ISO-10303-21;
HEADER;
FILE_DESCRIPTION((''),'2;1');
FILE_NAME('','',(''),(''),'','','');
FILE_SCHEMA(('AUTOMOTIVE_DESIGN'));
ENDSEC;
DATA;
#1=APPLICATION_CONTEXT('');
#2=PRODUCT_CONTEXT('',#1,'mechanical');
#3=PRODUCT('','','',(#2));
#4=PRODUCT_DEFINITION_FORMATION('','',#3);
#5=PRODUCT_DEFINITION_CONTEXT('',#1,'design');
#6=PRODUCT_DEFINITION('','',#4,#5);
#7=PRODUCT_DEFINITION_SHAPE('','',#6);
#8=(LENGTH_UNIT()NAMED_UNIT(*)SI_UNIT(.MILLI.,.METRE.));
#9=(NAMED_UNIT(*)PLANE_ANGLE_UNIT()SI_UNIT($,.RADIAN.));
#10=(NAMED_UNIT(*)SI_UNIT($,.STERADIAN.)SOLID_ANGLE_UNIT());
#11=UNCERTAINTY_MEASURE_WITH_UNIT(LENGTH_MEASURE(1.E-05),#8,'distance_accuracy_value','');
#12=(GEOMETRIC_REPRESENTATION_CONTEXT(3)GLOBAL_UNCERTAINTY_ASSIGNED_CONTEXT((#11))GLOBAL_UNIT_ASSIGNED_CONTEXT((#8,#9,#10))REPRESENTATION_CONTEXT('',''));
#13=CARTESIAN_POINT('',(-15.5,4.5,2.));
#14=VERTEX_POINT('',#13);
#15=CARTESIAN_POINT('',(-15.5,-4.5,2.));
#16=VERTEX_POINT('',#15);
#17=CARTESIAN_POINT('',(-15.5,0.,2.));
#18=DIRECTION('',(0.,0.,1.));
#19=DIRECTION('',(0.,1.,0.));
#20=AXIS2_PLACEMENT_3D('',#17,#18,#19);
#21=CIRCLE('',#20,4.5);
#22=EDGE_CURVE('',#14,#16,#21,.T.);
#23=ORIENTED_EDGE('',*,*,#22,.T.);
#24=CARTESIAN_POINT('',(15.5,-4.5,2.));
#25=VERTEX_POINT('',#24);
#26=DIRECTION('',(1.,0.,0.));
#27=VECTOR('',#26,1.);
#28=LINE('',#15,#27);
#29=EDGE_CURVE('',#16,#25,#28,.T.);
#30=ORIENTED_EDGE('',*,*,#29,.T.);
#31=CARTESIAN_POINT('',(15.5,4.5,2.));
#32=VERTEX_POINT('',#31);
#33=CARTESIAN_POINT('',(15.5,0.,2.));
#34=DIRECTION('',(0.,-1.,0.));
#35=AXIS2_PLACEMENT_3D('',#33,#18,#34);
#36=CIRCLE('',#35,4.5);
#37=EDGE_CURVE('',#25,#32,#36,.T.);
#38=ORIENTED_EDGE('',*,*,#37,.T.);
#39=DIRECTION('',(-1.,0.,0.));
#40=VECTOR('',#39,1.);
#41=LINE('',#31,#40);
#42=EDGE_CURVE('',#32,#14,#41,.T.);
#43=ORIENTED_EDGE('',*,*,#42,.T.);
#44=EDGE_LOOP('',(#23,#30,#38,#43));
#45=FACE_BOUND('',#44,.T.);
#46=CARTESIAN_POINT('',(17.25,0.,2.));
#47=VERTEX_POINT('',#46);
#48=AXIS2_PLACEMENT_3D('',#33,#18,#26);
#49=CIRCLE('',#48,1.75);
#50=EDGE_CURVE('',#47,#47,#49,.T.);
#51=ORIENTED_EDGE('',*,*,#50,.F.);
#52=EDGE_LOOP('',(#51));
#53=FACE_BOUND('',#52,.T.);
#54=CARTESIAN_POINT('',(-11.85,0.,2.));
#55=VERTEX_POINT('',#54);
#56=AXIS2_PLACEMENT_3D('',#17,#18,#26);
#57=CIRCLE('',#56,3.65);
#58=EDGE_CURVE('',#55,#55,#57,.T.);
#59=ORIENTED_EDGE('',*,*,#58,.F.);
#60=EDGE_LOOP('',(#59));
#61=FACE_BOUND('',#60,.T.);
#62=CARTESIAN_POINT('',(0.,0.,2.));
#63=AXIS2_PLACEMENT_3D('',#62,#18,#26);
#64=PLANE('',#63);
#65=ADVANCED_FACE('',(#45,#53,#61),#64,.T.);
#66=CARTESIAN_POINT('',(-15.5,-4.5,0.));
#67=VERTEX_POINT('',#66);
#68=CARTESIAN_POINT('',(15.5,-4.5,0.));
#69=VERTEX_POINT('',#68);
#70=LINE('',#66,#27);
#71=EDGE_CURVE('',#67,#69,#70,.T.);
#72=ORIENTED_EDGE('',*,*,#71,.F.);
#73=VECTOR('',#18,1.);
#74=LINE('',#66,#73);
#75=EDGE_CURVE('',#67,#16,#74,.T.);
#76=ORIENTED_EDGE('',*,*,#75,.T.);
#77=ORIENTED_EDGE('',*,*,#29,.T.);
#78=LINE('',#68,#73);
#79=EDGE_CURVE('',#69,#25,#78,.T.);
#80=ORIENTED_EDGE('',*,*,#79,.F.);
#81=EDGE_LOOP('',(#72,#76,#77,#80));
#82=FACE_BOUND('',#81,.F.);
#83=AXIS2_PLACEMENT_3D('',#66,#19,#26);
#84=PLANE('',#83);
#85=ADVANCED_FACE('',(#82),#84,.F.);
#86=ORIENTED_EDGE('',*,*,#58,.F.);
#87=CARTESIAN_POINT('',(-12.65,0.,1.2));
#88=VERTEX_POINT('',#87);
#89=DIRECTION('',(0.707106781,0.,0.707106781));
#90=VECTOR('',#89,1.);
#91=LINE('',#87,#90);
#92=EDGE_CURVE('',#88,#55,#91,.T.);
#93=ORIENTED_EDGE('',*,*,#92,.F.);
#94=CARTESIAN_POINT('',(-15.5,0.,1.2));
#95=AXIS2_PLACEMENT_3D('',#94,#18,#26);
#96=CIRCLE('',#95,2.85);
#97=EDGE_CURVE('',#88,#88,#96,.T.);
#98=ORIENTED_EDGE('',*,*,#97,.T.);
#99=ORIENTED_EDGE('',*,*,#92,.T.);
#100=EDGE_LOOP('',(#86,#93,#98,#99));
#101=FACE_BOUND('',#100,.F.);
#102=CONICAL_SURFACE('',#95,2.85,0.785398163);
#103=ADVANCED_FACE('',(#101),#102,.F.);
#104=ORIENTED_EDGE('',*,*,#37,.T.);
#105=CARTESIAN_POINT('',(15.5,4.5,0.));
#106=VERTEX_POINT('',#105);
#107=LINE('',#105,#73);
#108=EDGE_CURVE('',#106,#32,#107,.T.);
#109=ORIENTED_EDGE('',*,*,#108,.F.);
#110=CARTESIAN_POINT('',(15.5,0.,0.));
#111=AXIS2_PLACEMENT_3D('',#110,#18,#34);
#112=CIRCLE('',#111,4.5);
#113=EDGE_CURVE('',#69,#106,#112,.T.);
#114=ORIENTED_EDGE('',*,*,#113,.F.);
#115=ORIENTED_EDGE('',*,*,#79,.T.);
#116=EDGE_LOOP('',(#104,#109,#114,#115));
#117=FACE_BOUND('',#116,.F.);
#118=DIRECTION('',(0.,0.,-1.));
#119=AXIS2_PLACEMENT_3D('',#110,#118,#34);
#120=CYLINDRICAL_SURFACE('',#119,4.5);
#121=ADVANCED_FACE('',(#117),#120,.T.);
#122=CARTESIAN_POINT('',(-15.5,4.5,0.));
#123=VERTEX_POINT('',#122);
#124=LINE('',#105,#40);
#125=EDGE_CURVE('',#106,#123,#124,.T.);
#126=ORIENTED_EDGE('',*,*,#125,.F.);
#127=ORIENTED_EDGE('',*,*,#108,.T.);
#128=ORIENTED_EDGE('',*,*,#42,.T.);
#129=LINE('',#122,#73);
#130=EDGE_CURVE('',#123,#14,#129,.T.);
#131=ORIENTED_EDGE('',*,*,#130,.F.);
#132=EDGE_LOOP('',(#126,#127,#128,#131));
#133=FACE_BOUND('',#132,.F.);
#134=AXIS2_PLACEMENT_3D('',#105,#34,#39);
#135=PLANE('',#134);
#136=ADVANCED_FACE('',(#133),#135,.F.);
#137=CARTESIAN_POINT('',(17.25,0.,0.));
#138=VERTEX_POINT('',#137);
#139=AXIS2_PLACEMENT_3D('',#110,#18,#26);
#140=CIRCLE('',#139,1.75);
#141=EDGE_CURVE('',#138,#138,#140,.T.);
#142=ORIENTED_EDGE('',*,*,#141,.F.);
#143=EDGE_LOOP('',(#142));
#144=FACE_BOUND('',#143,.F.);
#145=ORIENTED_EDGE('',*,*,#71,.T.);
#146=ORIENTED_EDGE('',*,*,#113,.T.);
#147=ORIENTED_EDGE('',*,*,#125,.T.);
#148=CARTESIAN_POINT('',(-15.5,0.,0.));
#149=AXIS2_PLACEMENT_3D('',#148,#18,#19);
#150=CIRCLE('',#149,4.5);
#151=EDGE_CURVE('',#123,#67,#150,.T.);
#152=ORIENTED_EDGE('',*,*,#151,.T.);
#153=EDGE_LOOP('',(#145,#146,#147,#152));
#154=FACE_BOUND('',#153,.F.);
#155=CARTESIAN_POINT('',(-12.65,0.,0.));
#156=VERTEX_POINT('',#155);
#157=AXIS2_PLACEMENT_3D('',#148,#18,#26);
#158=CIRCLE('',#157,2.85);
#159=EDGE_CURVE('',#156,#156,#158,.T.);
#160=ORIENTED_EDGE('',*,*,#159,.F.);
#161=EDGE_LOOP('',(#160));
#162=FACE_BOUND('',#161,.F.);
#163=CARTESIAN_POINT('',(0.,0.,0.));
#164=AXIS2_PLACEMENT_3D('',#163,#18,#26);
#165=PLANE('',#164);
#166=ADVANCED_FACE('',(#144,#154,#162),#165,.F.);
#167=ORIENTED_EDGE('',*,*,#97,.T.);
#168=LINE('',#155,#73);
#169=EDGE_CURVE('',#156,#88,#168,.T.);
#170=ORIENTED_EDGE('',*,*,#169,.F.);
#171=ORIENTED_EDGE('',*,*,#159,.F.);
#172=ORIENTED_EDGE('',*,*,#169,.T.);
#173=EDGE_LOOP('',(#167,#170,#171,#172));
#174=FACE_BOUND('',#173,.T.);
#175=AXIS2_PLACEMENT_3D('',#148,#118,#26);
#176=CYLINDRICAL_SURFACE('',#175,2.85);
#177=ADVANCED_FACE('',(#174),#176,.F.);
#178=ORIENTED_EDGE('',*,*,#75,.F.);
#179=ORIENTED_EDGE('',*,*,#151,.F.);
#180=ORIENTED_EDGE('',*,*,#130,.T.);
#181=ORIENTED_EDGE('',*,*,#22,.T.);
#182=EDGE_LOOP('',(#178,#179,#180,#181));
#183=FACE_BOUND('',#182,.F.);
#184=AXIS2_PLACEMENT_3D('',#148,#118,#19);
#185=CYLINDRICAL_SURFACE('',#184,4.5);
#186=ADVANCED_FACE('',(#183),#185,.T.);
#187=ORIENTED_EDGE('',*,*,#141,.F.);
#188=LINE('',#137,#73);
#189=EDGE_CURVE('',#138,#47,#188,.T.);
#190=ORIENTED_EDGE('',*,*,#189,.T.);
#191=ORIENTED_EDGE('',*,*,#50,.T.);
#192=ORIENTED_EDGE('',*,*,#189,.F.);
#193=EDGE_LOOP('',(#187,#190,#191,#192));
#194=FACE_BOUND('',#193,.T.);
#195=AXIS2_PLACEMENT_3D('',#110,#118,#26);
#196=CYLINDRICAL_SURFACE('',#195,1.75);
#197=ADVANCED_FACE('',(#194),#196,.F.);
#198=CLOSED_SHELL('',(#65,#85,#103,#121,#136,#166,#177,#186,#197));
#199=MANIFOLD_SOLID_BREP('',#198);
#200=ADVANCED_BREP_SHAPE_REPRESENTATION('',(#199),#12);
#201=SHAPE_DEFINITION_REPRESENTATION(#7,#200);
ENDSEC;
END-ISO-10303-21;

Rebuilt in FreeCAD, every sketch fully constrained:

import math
import FreeCAD as App
import Part
import Sketcher
from FreeCAD import Vector
Q = App.Units.Quantity


def edges_at(feature, points):
    """Names of the edges that pass closest to the given points."""
    edges = feature.Shape.Edges
    near = lambda p: min(range(len(edges)), key=lambda i: edges[i].distToShape(Part.Vertex(*p))[0])
    return sorted({f"Edge{near(p) + 1}" for p in points})

doc = App.newDocument("Part")
body = doc.addObject("PartDesign::Body", "Body")

# Sketch on XY plane
sketch1 = body.newObject("Sketcher::SketchObject", "Sketch")
sketch1.AttachmentSupport = (doc.getObject("XY_Plane"), [""])
sketch1.MapMode = "FlatFace"
sketch1.addGeometry([
    Part.ArcOfCircle(Part.Circle(Vector(-15.5, 0, 0), Vector(0, 0, 1), 4.5), math.radians(90), math.radians(270)),  # 0
    Part.LineSegment(Vector(-15.5, -4.5, 0), Vector(15.5, -4.5, 0)),  # 1
    Part.ArcOfCircle(Part.Circle(Vector(15.5, 0, 0), Vector(0, 0, 1), 4.5), math.radians(-90), math.radians(90)),  # 2
    Part.LineSegment(Vector(15.5, 4.5, 0), Vector(-15.5, 4.5, 0)),  # 3
    Part.Circle(Vector(-15.5, 0, 0), Vector(0, 0, 1), 2.85),  # 4
    Part.Circle(Vector(15.5, 0, 0), Vector(0, 0, 1), 1.75),  # 5
], False)
sketch1.addConstraint([
    Sketcher.Constraint("Tangent", 0, 2, 1, 1),
    Sketcher.Constraint("Tangent", 1, 2, 2, 1),
    Sketcher.Constraint("Tangent", 2, 2, 3, 1),
    Sketcher.Constraint("Tangent", 3, 2, 0, 1),
    Sketcher.Constraint("Horizontal", 1),
    Sketcher.Constraint("Horizontal", 3),
    Sketcher.Constraint("Coincident", 4, 3, 0, 3),
    Sketcher.Constraint("Coincident", 5, 3, 2, 3),
    Sketcher.Constraint("Symmetric", 0, 3, 2, 3, -1, 1),
    Sketcher.Constraint("Diameter", 4, Q("5.7 mm")),
    Sketcher.Constraint("Diameter", 5, Q("3.5 mm")),
    Sketcher.Constraint("Radius", 0, Q("4.5 mm")),
    Sketcher.Constraint("DistanceX", 1, 1, 1, 2, Q("31 mm")),
])
pad1 = body.newObject("PartDesign::Pad", "Pad")
pad1.Profile = sketch1
pad1.Length = 2
doc.recompute()

chamfer = body.newObject("PartDesign::Chamfer", "Chamfer")
chamfer.Base = (pad1, edges_at(pad1, [(-18.35, 0, 2)]))
chamfer.Size = 0.8

doc.recompute()
